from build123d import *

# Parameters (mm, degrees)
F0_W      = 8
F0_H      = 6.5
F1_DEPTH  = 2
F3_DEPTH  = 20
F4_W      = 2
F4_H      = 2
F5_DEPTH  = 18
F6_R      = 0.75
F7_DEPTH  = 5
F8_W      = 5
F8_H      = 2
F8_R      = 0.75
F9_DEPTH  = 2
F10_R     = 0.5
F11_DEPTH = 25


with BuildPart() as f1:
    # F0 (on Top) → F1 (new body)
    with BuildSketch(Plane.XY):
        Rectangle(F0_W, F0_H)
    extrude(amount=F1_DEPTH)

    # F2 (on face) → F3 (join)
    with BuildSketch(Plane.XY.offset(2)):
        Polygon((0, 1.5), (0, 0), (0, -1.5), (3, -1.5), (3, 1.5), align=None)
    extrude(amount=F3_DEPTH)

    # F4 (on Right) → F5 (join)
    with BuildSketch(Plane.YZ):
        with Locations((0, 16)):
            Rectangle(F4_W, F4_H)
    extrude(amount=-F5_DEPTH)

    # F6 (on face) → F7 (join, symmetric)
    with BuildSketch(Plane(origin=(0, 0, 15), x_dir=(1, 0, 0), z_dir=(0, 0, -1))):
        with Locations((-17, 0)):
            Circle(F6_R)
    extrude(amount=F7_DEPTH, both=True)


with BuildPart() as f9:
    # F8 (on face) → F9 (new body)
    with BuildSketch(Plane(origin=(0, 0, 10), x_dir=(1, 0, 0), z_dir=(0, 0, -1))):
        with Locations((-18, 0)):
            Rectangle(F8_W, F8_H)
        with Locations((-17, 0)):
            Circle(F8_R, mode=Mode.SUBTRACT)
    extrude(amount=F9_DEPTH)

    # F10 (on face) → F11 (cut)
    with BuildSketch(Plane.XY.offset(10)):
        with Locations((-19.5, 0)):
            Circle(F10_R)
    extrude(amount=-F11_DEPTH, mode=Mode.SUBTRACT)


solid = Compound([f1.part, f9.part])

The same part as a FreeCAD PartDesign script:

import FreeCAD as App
import Part
import Sketcher

V = App.Vector

doc = App.newDocument("Part")
params = doc.addObject("Spreadsheet::Sheet", "Params")
for row, (alias, value) in enumerate([
    ("sketch1_width", "8 mm"),
    ("sketch1_height", "6.5 mm"),
    ("pad1_length", "2 mm"),
    ("sketch2_width", "3 mm"),
    ("pad2_length", "20 mm"),
    ("sketch3_width", "2 mm"),
    ("pad3_length", "18 mm"),
    ("sketch4_diameter", "1.5 mm"),
    ("pad4_length", "10 mm"),
    ("sketch5_diameter", "1.5 mm"),
    ("sketch5_width", "5 mm"),
    ("sketch5_height", "2 mm"),
    ("pad5_length", "2 mm"),
    ("sketch6_diameter", "1 mm"),
    ("pocket1_length", "25 mm"),
], start=1):
    params.set(f"A{row}", alias)
    params.set(f"B{row}", "=" + value)
    params.setAlias(f"B{row}", alias)

body = doc.addObject("PartDesign::Body", "Body")

sketch1 = body.newObject("Sketcher::SketchObject", "Sketch")
sketch1.AttachmentSupport = (doc.getObject("XY_Plane"), [""])
sketch1.MapMode = "FlatFace"
sketch1.addGeometry([
    Part.LineSegment(V(-4, 3, 0), V(-4, -3, 0)),
    Part.LineSegment(V(-4, -3, 0), V(4, -3, 0)),
    Part.LineSegment(V(4, -3, 0), V(4, 3, 0)),
    Part.LineSegment(V(4, 3, 0), V(-4, 3, 0)),
], False)
sketch1.addConstraint([
    Sketcher.Constraint("Coincident", 0, 2, 1, 1),
    Sketcher.Constraint("Coincident", 1, 2, 2, 1),
    Sketcher.Constraint("Coincident", 2, 2, 3, 1),
    Sketcher.Constraint("Coincident", 3, 2, 0, 1),
    Sketcher.Constraint("Vertical", 0),
    Sketcher.Constraint("Horizontal", 1),
    Sketcher.Constraint("Vertical", 2),
    Sketcher.Constraint("Horizontal", 3),
    Sketcher.Constraint("Symmetric", 0, 2, 2, 2, -1, 1),
    Sketcher.Constraint("DistanceX", 1, 1, 1, 2, 8.0),
    Sketcher.Constraint("DistanceY", 0, 2, 0, 1, 6.5),
])
sketch1.setExpression("Constraints[9]", "Params.sketch1_width")
sketch1.setExpression("Constraints[10]", "Params.sketch1_height")
pad1 = body.newObject("PartDesign::Pad", "Pad")
pad1.Profile = sketch1
pad1.setExpression("Length", "Params.pad1_length")

sketch2 = body.newObject("Sketcher::SketchObject", "Sketch001")
sketch2.AttachmentSupport = (doc.getObject("XY_Plane"), [""])
sketch2.MapMode = "FlatFace"
sketch2.AttachmentOffset = App.Placement(V(0, 0, 2), App.Rotation())
sketch2.addGeometry([
    Part.LineSegment(V(0, 1.5, 0), V(0, -1.5, 0)),
    Part.LineSegment(V(0, -1.5, 0), V(3, -1.5, 0)),
    Part.LineSegment(V(3, -1.5, 0), V(3, 1.5, 0)),
    Part.LineSegment(V(3, 1.5, 0), V(0, 1.5, 0)),
], False)
sketch2.addConstraint([
    Sketcher.Constraint("Coincident", 0, 2, 1, 1),
    Sketcher.Constraint("Coincident", 1, 2, 2, 1),
    Sketcher.Constraint("Coincident", 2, 2, 3, 1),
    Sketcher.Constraint("Coincident", 3, 2, 0, 1),
    Sketcher.Constraint("Vertical", 0),
    Sketcher.Constraint("Horizontal", 1),
    Sketcher.Constraint("Vertical", 2),
    Sketcher.Constraint("Horizontal", 3),
    Sketcher.Constraint("Symmetric", 0, 2, 3, 2, -1, 1),
    Sketcher.Constraint("Equal", 3, 0),
    Sketcher.Constraint("DistanceX", 1, 1, 1, 2, 3.0),
])
sketch2.setExpression("Constraints[10]", "Params.sketch2_width")
pad2 = body.newObject("PartDesign::Pad", "Pad001")
pad2.Profile = sketch2
pad2.setExpression("Length", "Params.pad2_length")

sketch3 = body.newObject("Sketcher::SketchObject", "Sketch002")
sketch3.AttachmentSupport = (doc.getObject("YZ_Plane"), [""])
sketch3.MapMode = "FlatFace"
sketch3.addGeometry([
    Part.LineSegment(V(-1, 17, 0), V(-1, 15, 0)),
    Part.LineSegment(V(-1, 15, 0), V(1, 15, 0)),
    Part.LineSegment(V(1, 15, 0), V(1, 17, 0)),
    Part.LineSegment(V(1, 17, 0), V(-1, 17, 0)),
], False)
sketch3.addConstraint([
    Sketcher.Constraint("Coincident", 0, 2, 1, 1),
    Sketcher.Constraint("Coincident", 1, 2, 2, 1),
    Sketcher.Constraint("Coincident", 2, 2, 3, 1),
    Sketcher.Constraint("Coincident", 3, 2, 0, 1),
    Sketcher.Constraint("Vertical", 0),
    Sketcher.Constraint("Horizontal", 1),
    Sketcher.Constraint("Vertical", 2),
    Sketcher.Constraint("Horizontal", 3),
    Sketcher.Constraint("Equal", 3, 0),
    Sketcher.Constraint("DistanceX", 1, 1, 1, 2, 2.0),
    Sketcher.Constraint("DistanceX", 0, 2, -1, 1, 1.0),
    Sketcher.Constraint("DistanceY", -1, 1, 0, 2, 15.0),
])
sketch3.setExpression("Constraints[9]", "Params.sketch3_width")
pad3 = body.newObject("PartDesign::Pad", "Pad002")
pad3.Profile = sketch3
pad3.setExpression("Length", "Params.pad3_length")
pad3.Reversed = True

sketch4 = body.newObject("Sketcher::SketchObject", "Sketch003")
sketch4.AttachmentSupport = (doc.getObject("XY_Plane"), [""])
sketch4.MapMode = "FlatFace"
sketch4.AttachmentOffset = App.Placement(V(0, 0, 15), App.Rotation())
sketch4.addGeometry(Part.Circle(V(-17, 0, 0), V(0, 0, 1), 0.8), False)
sketch4.addConstraint([
    Sketcher.Constraint("PointOnObject", 0, 3, -1),
    Sketcher.Constraint("Diameter", 0, 1.5),
    Sketcher.Constraint("DistanceX", 0, 3, -1, 1, 17.0),
])
sketch4.setExpression("Constraints[1]", "Params.sketch4_diameter")
pad4 = body.newObject("PartDesign::Pad", "Pad003")
pad4.Profile = sketch4
pad4.setExpression("Length", "Params.pad4_length")
pad4.Midplane = True
body2 = doc.addObject("PartDesign::Body", "Body001")

sketch5 = body2.newObject("Sketcher::SketchObject", "Sketch004")
sketch5.AttachmentSupport = (doc.getObject("XY_Plane001"), [""])
sketch5.MapMode = "FlatFace"
sketch5.AttachmentOffset = App.Placement(V(0, 0, 10), App.Rotation())
sketch5.addGeometry([
    Part.LineSegment(V(-20.5, -1, 0), V(-20.5, 1, 0)),
    Part.LineSegment(V(-20.5, 1, 0), V(-15.5, 1, 0)),
    Part.LineSegment(V(-15.5, 1, 0), V(-15.5, -1, 0)),
    Part.LineSegment(V(-15.5, -1, 0), V(-20.5, -1, 0)),
    Part.Circle(V(-17, 0, 0), V(0, 0, 1), 0.8),
], False)
sketch5.addConstraint([
    Sketcher.Constraint("Coincident", 0, 2, 1, 1),
    Sketcher.Constraint("Coincident", 1, 2, 2, 1),
    Sketcher.Constraint("Coincident", 2, 2, 3, 1),
    Sketcher.Constraint("Coincident", 3, 2, 0, 1),
    Sketcher.Constraint("Vertical", 0),
    Sketcher.Constraint("Horizontal", 1),
    Sketcher.Constraint("Vertical", 2),
    Sketcher.Constraint("Horizontal", 3),
    Sketcher.Constraint("PointOnObject", 4, 3, -1),
    Sketcher.Constraint("Diameter", 4, 1.5),
    Sketcher.Constraint("DistanceX", 1, 1, 1, 2, 5.0),
    Sketcher.Constraint("DistanceY", 0, 1, 0, 2, 2.0),
    Sketcher.Constraint("DistanceX", 4, 3, -1, 1, 17.0),
    Sketcher.Constraint("DistanceY", -1, 1, 0, 2, 1.0),
    Sketcher.Constraint("DistanceX", 0, 2, -1, 1, 20.5),
])
sketch5.setExpression("Constraints[9]", "Params.sketch5_diameter")
sketch5.setExpression("Constraints[10]", "Params.sketch5_width")
sketch5.setExpression("Constraints[11]", "Params.sketch5_height")
pad5 = body2.newObject("PartDesign::Pad", "Pad004")
pad5.Profile = sketch5
pad5.setExpression("Length", "Params.pad5_length")
pad5.Reversed = True

sketch6 = body2.newObject("Sketcher::SketchObject", "Sketch005")
sketch6.AttachmentSupport = (doc.getObject("XY_Plane001"), [""])
sketch6.MapMode = "FlatFace"
sketch6.AttachmentOffset = App.Placement(V(0, 0, 10), App.Rotation())
sketch6.addGeometry(Part.Circle(V(-19.5, 0, 0), V(0, 0, 1), 0.5), False)
sketch6.addConstraint([
    Sketcher.Constraint("PointOnObject", 0, 3, -1),
    Sketcher.Constraint("Diameter", 0, 1.0),
    Sketcher.Constraint("DistanceX", 0, 3, -1, 1, 19.5),
])
sketch6.setExpression("Constraints[1]", "Params.sketch6_diameter")
pocket1 = body2.newObject("PartDesign::Pocket", "Pocket")
pocket1.Profile = sketch6
pocket1.setExpression("Length", "Params.pocket1_length")

doc.recompute()
